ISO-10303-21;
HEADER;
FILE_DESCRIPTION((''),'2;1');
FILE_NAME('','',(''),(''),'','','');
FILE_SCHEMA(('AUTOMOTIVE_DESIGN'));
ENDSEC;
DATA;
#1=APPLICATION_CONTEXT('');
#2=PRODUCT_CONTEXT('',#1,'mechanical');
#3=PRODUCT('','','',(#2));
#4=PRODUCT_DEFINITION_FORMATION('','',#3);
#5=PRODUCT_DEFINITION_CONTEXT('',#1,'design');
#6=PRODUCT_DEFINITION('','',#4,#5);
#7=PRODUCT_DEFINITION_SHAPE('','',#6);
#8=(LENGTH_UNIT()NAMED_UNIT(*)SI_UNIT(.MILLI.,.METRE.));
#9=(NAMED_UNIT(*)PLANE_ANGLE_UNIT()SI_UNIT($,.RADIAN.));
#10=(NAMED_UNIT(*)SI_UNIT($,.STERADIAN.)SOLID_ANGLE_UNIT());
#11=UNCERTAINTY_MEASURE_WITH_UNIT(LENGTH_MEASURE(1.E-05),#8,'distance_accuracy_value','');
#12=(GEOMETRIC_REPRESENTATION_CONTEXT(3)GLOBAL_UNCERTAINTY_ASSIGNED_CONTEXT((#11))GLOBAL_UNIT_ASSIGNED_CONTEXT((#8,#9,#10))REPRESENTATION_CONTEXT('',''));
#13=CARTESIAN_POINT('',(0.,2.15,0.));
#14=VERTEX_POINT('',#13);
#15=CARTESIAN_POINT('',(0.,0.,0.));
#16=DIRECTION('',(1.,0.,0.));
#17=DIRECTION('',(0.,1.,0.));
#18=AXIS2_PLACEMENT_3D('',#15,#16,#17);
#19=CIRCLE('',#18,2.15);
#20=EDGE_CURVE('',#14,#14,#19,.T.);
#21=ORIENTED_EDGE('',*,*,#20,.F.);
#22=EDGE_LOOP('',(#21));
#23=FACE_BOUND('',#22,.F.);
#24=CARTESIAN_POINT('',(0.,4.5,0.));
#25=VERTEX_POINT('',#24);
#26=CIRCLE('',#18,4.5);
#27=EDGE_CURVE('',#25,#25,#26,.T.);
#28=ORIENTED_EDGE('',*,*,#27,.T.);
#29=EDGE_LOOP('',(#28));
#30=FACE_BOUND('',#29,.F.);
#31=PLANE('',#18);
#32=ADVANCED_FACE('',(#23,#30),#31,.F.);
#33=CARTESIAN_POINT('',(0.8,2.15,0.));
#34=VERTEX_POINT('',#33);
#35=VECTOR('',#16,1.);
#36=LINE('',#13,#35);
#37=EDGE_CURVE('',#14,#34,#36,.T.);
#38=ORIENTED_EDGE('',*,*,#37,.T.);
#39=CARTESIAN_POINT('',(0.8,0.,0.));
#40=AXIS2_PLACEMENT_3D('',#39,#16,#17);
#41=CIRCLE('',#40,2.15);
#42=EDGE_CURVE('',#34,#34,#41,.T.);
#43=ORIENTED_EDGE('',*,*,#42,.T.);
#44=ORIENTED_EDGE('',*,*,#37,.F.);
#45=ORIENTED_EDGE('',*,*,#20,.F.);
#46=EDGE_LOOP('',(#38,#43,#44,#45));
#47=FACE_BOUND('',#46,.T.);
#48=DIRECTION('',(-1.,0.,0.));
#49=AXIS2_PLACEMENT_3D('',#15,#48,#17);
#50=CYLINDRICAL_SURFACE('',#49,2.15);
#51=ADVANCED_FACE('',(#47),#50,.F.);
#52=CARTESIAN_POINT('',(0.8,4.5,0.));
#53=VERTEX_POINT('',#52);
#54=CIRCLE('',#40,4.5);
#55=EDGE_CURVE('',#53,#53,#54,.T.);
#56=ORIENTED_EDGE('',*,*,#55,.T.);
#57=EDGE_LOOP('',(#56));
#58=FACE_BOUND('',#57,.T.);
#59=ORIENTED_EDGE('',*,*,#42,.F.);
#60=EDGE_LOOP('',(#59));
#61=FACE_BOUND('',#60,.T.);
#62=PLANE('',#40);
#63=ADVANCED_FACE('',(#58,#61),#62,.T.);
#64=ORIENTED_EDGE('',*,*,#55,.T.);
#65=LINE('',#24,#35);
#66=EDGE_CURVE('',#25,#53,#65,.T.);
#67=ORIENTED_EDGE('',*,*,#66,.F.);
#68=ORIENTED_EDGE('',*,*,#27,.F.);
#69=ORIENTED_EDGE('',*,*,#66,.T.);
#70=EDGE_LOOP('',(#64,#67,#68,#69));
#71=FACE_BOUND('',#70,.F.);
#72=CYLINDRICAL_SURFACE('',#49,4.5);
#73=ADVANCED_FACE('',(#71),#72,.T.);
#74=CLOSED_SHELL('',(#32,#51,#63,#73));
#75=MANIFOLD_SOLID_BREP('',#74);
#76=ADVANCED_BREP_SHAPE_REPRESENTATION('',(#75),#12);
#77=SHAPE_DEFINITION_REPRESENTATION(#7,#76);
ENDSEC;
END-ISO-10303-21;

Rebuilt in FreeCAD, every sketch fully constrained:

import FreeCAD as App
import Part
import Sketcher
from FreeCAD import Vector
Q = App.Units.Quantity

doc = App.newDocument("Part")
body = doc.addObject("PartDesign::Body", "Body")

# Sketch on YZ plane
sketch1 = body.newObject("Sketcher::SketchObject", "Sketch")
sketch1.AttachmentSupport = (doc.getObject("YZ_Plane"), [""])
sketch1.MapMode = "FlatFace"
sketch1.addGeometry(Part.Circle(Vector(0, 0, 0), Vector(0, 0, 1), 4.5), False)
sketch1.addGeometry(Part.Circle(Vector(0, 0, 0), Vector(0, 0, 1), 2.1), False)
sketch1.addConstraint(Sketcher.Constraint("Coincident", 0, 3, -1, 1))
sketch1.addConstraint(Sketcher.Constraint("Coincident", 1, 3, -1, 1))
sketch1.addConstraint(Sketcher.Constraint("Diameter", 0, Q("9 mm")))
sketch1.addConstraint(Sketcher.Constraint("Diameter", 1, Q("4.3 mm")))
pad1 = body.newObject("PartDesign::Pad", "Pad")
pad1.Profile = sketch1
pad1.Length = 0.8

doc.recompute()
